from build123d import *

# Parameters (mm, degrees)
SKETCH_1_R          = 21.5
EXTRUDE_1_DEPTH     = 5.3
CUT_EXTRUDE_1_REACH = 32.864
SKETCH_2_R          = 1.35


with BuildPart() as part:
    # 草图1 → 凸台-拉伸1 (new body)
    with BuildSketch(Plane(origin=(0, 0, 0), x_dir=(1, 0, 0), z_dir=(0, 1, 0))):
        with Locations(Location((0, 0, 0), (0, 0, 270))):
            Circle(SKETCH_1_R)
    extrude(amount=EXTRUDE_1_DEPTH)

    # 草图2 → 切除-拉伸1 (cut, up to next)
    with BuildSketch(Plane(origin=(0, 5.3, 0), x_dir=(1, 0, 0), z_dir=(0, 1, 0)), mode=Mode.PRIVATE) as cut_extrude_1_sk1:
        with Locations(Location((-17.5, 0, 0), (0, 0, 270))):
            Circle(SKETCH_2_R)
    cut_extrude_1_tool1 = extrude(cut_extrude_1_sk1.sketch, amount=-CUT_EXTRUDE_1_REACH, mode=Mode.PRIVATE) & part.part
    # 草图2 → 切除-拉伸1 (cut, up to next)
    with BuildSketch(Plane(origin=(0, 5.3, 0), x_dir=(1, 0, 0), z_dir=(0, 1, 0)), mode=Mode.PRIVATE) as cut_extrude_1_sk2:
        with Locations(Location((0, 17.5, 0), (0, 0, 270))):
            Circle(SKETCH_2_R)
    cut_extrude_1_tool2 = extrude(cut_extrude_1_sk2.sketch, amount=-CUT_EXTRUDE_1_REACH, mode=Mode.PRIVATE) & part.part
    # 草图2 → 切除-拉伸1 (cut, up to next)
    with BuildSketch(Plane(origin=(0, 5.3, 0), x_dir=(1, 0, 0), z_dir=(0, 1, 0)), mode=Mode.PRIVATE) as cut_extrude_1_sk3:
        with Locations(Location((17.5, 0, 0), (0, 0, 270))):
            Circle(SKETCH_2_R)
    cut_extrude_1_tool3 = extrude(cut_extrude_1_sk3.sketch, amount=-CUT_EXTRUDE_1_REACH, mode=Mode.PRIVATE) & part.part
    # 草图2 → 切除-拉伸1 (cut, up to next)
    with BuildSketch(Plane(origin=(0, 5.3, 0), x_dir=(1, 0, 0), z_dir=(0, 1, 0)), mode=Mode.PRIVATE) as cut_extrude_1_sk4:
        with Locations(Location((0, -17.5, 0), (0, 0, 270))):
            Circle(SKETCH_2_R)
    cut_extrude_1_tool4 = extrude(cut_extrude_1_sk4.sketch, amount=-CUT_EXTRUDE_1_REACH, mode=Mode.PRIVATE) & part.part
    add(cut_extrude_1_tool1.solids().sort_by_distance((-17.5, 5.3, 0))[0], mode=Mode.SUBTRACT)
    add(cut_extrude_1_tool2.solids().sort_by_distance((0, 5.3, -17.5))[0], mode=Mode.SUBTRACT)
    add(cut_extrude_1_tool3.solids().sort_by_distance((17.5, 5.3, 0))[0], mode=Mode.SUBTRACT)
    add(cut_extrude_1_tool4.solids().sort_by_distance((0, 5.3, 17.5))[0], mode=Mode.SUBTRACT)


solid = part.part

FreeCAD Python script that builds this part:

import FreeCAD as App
import Part
import Sketcher
from FreeCAD import Vector
Q = App.Units.Quantity

doc = App.newDocument("Part")
body = doc.addObject("PartDesign::Body", "Body")

# Sketch on XZ plane
sketch1 = body.newObject("Sketcher::SketchObject", "Sketch")
sketch1.AttachmentSupport = (doc.getObject("XZ_Plane"), [""])
sketch1.MapMode = "FlatFace"
sketch1.addGeometry(Part.Circle(Vector(0, 0, 0), Vector(0, 0, 1), 22), False)
sketch1.addConstraint(Sketcher.Constraint("Coincident", 0, 3, -1, 1))
sketch1.addConstraint(Sketcher.Constraint("Diameter", 0, Q("43 mm")))
pad1 = body.newObject("PartDesign::Pad", "Pad")
pad1.Profile = sketch1
pad1.Length = 5.3
pad1.Reversed = True

# Sketch on XZ plane
sketch2 = body.newObject("Sketcher::SketchObject", "Sketch001")
sketch2.AttachmentSupport = (doc.getObject("XZ_Plane"), [""])
sketch2.MapMode = "FlatFace"
sketch2.AttachmentOffset = App.Placement(Vector(0, 0, -5.3), App.Rotation())
sketch2.addGeometry(Part.Circle(Vector(-17.5, 0, 0), Vector(0, 0, 1), 1.4), False)
sketch2.addConstraint(Sketcher.Constraint("PointOnObject", 0, 3, -1))
sketch2.addConstraint(Sketcher.Constraint("Diameter", 0, Q("2.7 mm")))
sketch2.addConstraint(Sketcher.Constraint("DistanceX", 0, 3, -1, 1, Q("17.5 mm")))
pocket1 = body.newObject("PartDesign::Pocket", "Pocket")
pocket1.Profile = sketch2
pocket1.Type = "UpToFirst"
pocket1.Reversed = True

# Sketch on XZ plane
sketch3 = body.newObject("Sketcher::SketchObject", "Sketch002")
sketch3.AttachmentSupport = (doc.getObject("XZ_Plane"), [""])
sketch3.MapMode = "FlatFace"
sketch3.AttachmentOffset = App.Placement(Vector(0, 0, -5.3), App.Rotation())
sketch3.addGeometry(Part.Circle(Vector(0, -17.5, 0), Vector(0, 0, 1), 1.4), False)
sketch3.addConstraint(Sketcher.Constraint("PointOnObject", 0, 3, -2))
sketch3.addConstraint(Sketcher.Constraint("Diameter", 0, Q("2.7 mm")))
sketch3.addConstraint(Sketcher.Constraint("DistanceY", 0, 3, -1, 1, Q("17.5 mm")))
pocket2 = body.newObject("PartDesign::Pocket", "Pocket001")
pocket2.Profile = sketch3
pocket2.Type = "UpToFirst"
pocket2.Reversed = True

# Sketch on XZ plane
sketch4 = body.newObject("Sketcher::SketchObject", "Sketch003")
sketch4.AttachmentSupport = (doc.getObject("XZ_Plane"), [""])
sketch4.MapMode = "FlatFace"
sketch4.AttachmentOffset = App.Placement(Vector(0, 0, -5.3), App.Rotation())
sketch4.addGeometry(Part.Circle(Vector(17.5, 0, 0), Vector(0, 0, 1), 1.4), False)
sketch4.addConstraint(Sketcher.Constraint("PointOnObject", 0, 3, -1))
sketch4.addConstraint(Sketcher.Constraint("Diameter", 0, Q("2.7 mm")))
sketch4.addConstraint(Sketcher.Constraint("DistanceX", -1, 1, 0, 3, Q("17.5 mm")))
pocket3 = body.newObject("PartDesign::Pocket", "Pocket002")
pocket3.Profile = sketch4
pocket3.Type = "UpToFirst"
pocket3.Reversed = True

# Sketch on XZ plane
sketch5 = body.newObject("Sketcher::SketchObject", "Sketch004")
sketch5.AttachmentSupport = (doc.getObject("XZ_Plane"), [""])
sketch5.MapMode = "FlatFace"
sketch5.AttachmentOffset = App.Placement(Vector(0, 0, -5.3), App.Rotation())
sketch5.addGeometry(Part.Circle(Vector(0, 17.5, 0), Vector(0, 0, 1), 1.4), False)
sketch5.addConstraint(Sketcher.Constraint("PointOnObject", 0, 3, -2))
sketch5.addConstraint(Sketcher.Constraint("Diameter", 0, Q("2.7 mm")))
sketch5.addConstraint(Sketcher.Constraint("DistanceY", -1, 1, 0, 3, Q("17.5 mm")))
pocket4 = body.newObject("PartDesign::Pocket", "Pocket003")
pocket4.Profile = sketch5
pocket4.Type = "UpToFirst"
pocket4.Reversed = True

doc.recompute()
